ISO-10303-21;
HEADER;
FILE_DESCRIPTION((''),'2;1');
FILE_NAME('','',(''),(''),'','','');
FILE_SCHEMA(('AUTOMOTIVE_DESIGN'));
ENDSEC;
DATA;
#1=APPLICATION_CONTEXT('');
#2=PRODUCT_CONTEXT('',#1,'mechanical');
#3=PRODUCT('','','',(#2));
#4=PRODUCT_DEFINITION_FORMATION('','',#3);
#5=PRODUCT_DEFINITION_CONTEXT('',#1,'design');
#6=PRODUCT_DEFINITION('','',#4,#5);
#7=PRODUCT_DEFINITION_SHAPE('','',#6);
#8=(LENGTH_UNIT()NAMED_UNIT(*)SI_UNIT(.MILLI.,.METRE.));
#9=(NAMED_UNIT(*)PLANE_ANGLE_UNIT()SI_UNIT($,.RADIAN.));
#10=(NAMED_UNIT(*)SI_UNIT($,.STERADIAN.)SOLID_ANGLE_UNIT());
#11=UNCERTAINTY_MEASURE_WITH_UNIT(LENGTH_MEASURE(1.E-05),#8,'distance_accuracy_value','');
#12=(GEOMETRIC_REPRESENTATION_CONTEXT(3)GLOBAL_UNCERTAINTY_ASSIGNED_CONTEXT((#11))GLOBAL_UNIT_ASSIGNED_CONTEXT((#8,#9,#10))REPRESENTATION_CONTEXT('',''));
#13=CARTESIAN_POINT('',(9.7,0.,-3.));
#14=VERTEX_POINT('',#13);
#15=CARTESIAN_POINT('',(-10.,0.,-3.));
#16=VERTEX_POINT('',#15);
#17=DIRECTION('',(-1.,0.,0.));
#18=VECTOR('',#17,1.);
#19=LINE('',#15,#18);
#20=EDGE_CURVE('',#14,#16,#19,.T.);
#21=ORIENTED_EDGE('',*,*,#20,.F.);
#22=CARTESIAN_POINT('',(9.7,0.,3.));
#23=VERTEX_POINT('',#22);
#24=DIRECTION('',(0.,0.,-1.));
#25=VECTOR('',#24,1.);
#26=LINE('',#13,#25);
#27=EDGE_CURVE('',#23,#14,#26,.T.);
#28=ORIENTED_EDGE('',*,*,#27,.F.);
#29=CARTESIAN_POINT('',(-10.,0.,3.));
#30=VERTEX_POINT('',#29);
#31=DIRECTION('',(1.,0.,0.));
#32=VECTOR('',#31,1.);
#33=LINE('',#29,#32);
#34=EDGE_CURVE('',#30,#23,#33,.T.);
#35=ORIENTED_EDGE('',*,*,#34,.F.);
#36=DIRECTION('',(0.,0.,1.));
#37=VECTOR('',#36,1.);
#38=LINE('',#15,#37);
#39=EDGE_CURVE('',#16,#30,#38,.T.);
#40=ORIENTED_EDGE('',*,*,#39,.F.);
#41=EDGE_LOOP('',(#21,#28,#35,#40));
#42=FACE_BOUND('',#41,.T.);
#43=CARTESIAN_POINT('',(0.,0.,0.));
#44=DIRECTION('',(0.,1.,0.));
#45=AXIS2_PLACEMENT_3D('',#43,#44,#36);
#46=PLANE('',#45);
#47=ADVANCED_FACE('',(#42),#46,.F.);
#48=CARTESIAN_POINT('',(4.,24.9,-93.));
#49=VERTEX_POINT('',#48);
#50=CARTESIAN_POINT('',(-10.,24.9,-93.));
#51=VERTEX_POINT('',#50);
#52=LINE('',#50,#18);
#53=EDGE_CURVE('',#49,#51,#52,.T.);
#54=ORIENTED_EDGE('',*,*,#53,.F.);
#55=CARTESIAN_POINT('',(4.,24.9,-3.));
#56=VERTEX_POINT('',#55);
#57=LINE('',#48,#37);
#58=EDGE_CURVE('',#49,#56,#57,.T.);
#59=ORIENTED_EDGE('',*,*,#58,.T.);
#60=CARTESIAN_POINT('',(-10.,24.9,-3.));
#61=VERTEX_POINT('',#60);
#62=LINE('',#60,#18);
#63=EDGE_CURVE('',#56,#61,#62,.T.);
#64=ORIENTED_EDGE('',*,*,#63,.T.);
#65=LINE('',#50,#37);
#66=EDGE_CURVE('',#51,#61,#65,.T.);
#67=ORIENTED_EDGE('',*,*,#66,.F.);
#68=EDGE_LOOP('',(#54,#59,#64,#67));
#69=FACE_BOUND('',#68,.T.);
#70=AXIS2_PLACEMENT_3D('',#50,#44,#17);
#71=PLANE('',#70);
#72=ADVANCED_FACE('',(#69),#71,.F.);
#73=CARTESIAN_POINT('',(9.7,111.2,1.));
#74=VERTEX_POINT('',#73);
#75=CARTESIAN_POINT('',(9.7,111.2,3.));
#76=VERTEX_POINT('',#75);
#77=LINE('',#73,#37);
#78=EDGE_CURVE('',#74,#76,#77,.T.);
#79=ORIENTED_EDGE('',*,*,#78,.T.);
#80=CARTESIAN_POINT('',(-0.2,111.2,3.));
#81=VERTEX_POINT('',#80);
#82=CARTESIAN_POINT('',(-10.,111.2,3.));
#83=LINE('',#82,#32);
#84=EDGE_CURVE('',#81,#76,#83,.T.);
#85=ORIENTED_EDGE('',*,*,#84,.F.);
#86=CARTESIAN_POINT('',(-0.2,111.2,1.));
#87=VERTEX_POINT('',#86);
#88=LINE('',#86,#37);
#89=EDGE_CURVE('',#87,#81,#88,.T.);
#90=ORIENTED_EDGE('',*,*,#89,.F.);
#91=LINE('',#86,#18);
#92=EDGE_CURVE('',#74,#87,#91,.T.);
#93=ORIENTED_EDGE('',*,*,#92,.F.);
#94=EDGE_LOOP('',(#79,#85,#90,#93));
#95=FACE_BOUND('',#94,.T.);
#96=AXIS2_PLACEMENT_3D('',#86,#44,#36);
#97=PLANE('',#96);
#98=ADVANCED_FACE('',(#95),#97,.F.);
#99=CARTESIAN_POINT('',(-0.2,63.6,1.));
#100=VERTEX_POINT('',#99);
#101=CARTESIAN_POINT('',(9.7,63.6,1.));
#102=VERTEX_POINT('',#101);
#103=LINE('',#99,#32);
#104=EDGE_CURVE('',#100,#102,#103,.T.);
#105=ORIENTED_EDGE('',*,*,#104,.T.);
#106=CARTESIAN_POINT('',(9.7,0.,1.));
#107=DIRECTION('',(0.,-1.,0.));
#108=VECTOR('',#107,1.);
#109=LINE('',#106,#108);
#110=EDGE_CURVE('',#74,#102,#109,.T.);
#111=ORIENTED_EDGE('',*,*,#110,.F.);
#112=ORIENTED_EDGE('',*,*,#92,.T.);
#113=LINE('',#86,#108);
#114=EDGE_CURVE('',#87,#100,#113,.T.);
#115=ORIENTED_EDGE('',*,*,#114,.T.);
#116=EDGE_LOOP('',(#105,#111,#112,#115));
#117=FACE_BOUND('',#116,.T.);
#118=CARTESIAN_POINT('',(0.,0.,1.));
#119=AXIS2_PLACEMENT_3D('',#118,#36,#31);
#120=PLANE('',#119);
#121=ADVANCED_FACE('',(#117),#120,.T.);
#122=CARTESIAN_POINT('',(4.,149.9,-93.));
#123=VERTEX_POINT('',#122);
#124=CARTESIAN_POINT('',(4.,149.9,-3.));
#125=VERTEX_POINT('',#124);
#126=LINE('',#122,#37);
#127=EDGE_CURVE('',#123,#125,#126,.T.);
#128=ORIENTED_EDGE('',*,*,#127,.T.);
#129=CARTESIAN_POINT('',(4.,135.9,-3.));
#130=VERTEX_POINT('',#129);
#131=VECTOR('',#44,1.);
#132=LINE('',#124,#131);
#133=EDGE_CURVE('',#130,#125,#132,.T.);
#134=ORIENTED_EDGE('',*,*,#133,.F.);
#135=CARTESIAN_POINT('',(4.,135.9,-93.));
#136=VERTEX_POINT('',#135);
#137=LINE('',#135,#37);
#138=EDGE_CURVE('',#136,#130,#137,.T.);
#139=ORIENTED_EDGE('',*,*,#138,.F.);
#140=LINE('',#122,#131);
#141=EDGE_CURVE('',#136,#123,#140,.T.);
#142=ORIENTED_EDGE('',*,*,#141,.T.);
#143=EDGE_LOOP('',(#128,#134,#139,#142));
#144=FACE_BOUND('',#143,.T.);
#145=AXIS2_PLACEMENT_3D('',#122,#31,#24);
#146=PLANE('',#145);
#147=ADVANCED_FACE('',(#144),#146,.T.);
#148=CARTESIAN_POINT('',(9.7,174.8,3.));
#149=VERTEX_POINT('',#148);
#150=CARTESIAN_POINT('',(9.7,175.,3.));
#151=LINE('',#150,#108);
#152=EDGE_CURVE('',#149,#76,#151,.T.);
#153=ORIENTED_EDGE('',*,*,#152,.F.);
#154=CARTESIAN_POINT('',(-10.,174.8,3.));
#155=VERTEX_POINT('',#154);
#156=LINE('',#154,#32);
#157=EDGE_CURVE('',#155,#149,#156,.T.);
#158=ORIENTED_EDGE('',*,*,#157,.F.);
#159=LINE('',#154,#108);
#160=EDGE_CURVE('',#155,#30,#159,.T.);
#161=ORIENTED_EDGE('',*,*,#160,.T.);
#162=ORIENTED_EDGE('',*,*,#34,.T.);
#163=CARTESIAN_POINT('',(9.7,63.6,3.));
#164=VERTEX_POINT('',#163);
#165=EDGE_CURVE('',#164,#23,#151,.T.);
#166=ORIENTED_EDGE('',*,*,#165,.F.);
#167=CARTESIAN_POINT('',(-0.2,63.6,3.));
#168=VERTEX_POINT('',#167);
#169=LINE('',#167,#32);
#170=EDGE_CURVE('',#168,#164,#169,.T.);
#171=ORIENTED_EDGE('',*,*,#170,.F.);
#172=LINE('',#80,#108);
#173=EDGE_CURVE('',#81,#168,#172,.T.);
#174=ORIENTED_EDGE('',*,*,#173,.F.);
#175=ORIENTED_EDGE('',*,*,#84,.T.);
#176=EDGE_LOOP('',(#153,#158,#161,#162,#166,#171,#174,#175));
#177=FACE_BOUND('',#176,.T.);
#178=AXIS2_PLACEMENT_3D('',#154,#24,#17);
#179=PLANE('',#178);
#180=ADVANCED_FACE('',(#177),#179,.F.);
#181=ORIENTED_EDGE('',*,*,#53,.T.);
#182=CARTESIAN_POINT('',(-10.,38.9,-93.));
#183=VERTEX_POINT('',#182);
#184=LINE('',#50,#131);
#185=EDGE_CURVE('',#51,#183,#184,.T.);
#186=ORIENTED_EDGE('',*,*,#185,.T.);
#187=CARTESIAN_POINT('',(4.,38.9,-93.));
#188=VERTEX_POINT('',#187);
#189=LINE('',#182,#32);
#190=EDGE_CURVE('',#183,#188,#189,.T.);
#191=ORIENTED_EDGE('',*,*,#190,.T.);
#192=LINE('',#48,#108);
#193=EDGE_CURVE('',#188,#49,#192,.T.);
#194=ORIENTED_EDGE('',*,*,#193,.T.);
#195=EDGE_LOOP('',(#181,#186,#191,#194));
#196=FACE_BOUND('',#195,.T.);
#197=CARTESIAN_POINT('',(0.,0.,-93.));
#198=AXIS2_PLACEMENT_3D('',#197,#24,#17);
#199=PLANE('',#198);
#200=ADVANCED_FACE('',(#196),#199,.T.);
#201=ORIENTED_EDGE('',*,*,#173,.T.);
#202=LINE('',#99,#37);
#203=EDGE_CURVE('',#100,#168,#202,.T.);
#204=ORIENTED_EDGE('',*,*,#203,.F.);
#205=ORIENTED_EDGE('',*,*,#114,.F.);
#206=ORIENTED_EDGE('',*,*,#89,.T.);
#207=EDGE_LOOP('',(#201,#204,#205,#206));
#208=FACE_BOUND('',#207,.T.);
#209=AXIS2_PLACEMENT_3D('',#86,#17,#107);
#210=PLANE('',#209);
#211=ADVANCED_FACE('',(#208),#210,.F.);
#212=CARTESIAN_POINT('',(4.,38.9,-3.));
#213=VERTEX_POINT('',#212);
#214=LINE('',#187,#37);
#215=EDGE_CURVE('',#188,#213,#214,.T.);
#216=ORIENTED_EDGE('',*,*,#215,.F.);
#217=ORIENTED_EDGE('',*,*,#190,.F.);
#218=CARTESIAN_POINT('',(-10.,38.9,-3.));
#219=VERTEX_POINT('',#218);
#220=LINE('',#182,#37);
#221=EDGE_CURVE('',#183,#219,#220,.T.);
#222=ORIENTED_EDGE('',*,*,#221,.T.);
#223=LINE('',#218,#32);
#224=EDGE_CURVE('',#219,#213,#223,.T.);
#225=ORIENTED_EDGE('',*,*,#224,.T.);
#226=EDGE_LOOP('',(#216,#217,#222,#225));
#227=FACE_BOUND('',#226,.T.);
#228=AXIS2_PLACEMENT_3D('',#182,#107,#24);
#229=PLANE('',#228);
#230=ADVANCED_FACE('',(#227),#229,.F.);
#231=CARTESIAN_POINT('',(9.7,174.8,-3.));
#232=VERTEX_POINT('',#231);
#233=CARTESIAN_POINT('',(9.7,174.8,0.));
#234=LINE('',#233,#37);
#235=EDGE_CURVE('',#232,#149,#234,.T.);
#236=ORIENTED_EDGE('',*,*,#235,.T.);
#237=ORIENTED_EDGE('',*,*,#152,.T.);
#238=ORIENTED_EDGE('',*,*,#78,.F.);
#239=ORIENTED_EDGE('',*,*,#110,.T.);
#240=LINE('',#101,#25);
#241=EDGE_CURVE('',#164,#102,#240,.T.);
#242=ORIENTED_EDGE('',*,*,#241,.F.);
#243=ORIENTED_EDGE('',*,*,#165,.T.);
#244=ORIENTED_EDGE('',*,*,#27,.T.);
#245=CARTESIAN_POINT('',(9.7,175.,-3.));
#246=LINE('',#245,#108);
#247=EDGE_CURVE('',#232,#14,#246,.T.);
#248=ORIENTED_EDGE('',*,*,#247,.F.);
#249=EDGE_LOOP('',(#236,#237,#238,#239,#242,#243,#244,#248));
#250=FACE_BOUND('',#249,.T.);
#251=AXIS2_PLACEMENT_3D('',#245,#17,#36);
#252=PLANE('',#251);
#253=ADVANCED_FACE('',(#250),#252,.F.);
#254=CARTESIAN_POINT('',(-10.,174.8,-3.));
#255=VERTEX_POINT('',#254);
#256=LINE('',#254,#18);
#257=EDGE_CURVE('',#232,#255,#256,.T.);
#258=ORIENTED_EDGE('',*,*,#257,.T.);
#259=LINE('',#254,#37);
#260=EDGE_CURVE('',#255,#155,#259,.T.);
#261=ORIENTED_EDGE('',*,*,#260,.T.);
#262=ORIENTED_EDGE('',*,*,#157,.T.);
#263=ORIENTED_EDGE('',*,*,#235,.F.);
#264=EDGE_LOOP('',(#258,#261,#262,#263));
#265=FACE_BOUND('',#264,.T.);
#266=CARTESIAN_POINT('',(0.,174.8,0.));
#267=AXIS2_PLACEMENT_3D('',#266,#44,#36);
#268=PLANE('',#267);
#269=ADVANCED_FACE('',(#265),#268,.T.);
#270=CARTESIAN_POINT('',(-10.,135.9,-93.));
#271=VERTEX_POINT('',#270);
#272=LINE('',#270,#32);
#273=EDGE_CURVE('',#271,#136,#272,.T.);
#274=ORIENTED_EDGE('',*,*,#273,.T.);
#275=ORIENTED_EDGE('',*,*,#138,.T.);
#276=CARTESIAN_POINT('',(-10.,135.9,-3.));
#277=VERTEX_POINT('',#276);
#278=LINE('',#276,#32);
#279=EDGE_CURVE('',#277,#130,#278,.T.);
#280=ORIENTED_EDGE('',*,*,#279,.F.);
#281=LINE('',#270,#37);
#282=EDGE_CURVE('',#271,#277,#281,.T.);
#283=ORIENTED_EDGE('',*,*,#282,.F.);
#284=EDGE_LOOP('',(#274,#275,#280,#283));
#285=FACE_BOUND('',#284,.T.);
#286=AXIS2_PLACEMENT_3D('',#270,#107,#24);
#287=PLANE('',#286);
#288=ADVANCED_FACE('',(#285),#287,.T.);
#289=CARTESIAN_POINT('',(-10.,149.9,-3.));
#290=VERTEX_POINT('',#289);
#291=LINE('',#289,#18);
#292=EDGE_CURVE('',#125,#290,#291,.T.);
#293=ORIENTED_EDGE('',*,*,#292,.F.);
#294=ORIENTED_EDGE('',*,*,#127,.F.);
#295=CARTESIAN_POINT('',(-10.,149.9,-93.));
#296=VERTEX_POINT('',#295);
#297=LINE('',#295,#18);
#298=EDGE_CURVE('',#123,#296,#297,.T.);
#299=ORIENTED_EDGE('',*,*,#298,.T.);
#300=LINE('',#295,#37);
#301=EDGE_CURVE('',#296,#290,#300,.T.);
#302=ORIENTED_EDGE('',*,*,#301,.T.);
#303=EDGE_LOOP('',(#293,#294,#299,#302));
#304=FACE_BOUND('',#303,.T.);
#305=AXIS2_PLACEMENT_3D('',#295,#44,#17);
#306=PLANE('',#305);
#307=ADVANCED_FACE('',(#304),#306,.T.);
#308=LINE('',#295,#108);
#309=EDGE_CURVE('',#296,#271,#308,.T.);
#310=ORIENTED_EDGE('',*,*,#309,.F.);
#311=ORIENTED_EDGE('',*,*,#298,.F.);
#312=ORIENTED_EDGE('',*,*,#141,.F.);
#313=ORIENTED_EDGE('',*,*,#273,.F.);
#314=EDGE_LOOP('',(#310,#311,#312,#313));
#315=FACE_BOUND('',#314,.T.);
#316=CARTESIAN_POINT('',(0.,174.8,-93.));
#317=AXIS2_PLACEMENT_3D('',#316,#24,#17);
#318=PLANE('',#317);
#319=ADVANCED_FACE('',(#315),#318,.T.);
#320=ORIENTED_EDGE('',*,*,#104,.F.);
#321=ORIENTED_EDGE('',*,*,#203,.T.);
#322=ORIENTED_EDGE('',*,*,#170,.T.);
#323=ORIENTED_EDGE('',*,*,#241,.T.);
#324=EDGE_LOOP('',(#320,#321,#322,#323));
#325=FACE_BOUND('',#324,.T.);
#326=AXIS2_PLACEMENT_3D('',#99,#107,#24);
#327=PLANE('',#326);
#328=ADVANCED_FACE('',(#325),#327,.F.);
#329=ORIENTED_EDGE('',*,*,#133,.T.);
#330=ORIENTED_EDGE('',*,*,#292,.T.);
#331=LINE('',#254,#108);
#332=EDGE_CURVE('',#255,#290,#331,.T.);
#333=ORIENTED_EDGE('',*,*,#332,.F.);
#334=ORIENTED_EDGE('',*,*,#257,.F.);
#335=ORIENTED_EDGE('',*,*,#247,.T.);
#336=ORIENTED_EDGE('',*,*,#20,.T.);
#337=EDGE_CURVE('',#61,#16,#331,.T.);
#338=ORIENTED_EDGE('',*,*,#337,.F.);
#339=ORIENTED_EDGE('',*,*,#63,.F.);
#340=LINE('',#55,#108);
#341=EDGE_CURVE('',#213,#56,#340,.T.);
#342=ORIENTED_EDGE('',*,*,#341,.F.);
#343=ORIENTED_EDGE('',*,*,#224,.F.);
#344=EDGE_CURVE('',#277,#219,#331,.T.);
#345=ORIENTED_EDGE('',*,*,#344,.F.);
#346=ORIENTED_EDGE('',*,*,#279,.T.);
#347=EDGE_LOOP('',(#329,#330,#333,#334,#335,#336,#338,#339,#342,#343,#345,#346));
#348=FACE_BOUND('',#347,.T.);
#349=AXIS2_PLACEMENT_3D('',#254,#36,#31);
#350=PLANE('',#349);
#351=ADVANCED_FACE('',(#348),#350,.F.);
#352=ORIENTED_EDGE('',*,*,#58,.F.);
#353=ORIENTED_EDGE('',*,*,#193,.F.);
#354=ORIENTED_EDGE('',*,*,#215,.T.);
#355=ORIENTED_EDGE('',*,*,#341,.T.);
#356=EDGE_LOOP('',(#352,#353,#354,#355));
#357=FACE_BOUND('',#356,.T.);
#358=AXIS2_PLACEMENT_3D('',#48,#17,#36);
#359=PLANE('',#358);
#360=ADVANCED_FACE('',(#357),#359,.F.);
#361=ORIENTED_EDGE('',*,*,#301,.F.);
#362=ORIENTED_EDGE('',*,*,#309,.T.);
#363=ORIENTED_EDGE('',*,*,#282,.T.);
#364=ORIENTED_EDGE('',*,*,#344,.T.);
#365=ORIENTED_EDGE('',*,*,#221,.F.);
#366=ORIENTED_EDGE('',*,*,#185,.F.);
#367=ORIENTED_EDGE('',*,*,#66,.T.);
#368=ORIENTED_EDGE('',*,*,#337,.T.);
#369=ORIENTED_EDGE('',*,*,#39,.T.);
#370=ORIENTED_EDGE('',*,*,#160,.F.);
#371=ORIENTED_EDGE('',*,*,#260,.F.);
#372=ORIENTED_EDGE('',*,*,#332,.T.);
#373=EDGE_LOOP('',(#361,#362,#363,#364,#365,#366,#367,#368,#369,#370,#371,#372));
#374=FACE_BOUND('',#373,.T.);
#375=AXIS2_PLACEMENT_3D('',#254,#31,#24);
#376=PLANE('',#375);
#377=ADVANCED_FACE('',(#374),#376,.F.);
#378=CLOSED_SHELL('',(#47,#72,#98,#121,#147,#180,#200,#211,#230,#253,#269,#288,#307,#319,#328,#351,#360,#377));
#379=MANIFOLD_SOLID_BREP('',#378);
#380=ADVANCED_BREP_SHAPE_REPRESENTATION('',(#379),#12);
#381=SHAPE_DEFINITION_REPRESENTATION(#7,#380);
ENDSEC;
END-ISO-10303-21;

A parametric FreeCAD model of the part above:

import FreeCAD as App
import Part
import Sketcher
from FreeCAD import Vector

doc = App.newDocument("Part")
body = doc.addObject("PartDesign::Body", "Body")

sketch1 = body.newObject("Sketcher::SketchObject", "Sketch")
sketch1.AttachmentSupport = (doc.getObject("XZ_Plane"), [""])
sketch1.MapMode = "FlatFace"
sketch1.addGeometry([
    Part.LineSegment(Vector(-10, -3, 0), Vector(-10, 3, 0)),
    Part.LineSegment(Vector(-10, 3, 0), Vector(10, 3, 0)),
    Part.LineSegment(Vector(10, 3, 0), Vector(10, -3, 0)),
    Part.LineSegment(Vector(10, -3, 0), Vector(-10, -3, 0)),
], False)
sketch1.addConstraint([
    Sketcher.Constraint("Coincident", 0, 2, 1, 1),
    Sketcher.Constraint("Coincident", 1, 2, 2, 1),
    Sketcher.Constraint("Coincident", 2, 2, 3, 1),
    Sketcher.Constraint("Coincident", 3, 2, 0, 1),
    Sketcher.Constraint("Vertical", 0),
    Sketcher.Constraint("Horizontal", 1),
    Sketcher.Constraint("Vertical", 2),
    Sketcher.Constraint("Horizontal", 3),
    Sketcher.Constraint("Symmetric", 0, 2, 2, 2, -1, 1),
    Sketcher.Constraint("DistanceX", 1, 1, 1, 2, 20.0),
    Sketcher.Constraint("DistanceY", 0, 1, 0, 2, 6.0),
])
pad1 = body.newObject("PartDesign::Pad", "Pad")
pad1.Profile = sketch1
pad1.Length = 174.8
pad1.Reversed = True

sketch2 = body.newObject("Sketcher::SketchObject", "Sketch001")
sketch2.AttachmentSupport = (doc.getObject("XY_Plane"), [""])
sketch2.MapMode = "FlatFace"
sketch2.AttachmentOffset = App.Placement(Vector(0, 0, 3), App.Rotation())
sketch2.addGeometry([
    Part.LineSegment(Vector(0, 111, 0), Vector(0, 64, 0)),
    Part.LineSegment(Vector(0, 64, 0), Vector(20, 64, 0)),
    Part.LineSegment(Vector(20, 64, 0), Vector(20, 111, 0)),
    Part.LineSegment(Vector(20, 111, 0), Vector(0, 111, 0)),
], False)
sketch2.addConstraint([
    Sketcher.Constraint("Coincident", 0, 2, 1, 1),
    Sketcher.Constraint("Coincident", 1, 2, 2, 1),
    Sketcher.Constraint("Coincident", 2, 2, 3, 1),
    Sketcher.Constraint("Coincident", 3, 2, 0, 1),
    Sketcher.Constraint("Vertical", 0),
    Sketcher.Constraint("Horizontal", 1),
    Sketcher.Constraint("Vertical", 2),
    Sketcher.Constraint("Horizontal", 3),
    Sketcher.Constraint("DistanceX", 1, 1, 1, 2, 20.4),
    Sketcher.Constraint("DistanceY", 0, 2, 0, 1, 47.6),
    Sketcher.Constraint("DistanceX", 0, 2, -1, 1, 0.2),
    Sketcher.Constraint("DistanceY", -1, 1, 0, 2, 63.6),
])
pocket1 = body.newObject("PartDesign::Pocket", "Pocket")
pocket1.Profile = sketch2
pocket1.Length = 2

sketch3 = body.newObject("Sketcher::SketchObject", "Sketch002")
sketch3.AttachmentSupport = (doc.getObject("XY_Plane"), [""])
sketch3.MapMode = "FlatFace"
sketch3.AttachmentOffset = App.Placement(Vector(0, 0, -3), App.Rotation())
sketch3.addGeometry([
    Part.LineSegment(Vector(4, 39, 0), Vector(4, 25, 0)),
    Part.LineSegment(Vector(4, 25, 0), Vector(-10, 25, 0)),
    Part.LineSegment(Vector(-10, 25, 0), Vector(-10, 39, 0)),
    Part.LineSegment(Vector(-10, 39, 0), Vector(4, 39, 0)),
], False)
sketch3.addConstraint([
    Sketcher.Constraint("Coincident", 0, 2, 1, 1),
    Sketcher.Constraint("Coincident", 1, 2, 2, 1),
    Sketcher.Constraint("Coincident", 2, 2, 3, 1),
    Sketcher.Constraint("Coincident", 3, 2, 0, 1),
    Sketcher.Constraint("Vertical", 0),
    Sketcher.Constraint("Horizontal", 1),
    Sketcher.Constraint("Vertical", 2),
    Sketcher.Constraint("Horizontal", 3),
    Sketcher.Constraint("Equal", 3, 0),
    Sketcher.Constraint("DistanceX", 1, 2, 1, 1, 14.0),
    Sketcher.Constraint("DistanceX", -1, 1, 0, 2, 4.0),
    Sketcher.Constraint("DistanceY", -1, 1, 0, 2, 24.9),
])
pad2 = body.newObject("PartDesign::Pad", "Pad001")
pad2.Profile = sketch3
pad2.Length = 90
pad2.Reversed = True
doc.recompute()

datumplane = body.newObject("PartDesign::Plane", "DatumPlane")
datumplane.AttachmentSupport = (doc.getObject("XZ_Plane"), [""])
datumplane.MapMode = "FlatFace"
datumplane.AttachmentOffset = App.Placement(Vector(0, 0, -87.4), App.Rotation())
mirrored = body.newObject("PartDesign::Mirrored", "Mirrored")
mirrored.Originals = [pad2]
mirrored.MirrorPlane = (datumplane, [""])
body.Tip = mirrored

sketch4 = body.newObject("Sketcher::SketchObject", "Sketch003")
sketch4.AttachmentSupport = (doc.getObject("XZ_Plane"), [""])
sketch4.MapMode = "FlatFace"
sketch4.addGeometry([
    Part.LineSegment(Vector(9.7, 3, 0), Vector(9.7, -3, 0)),
    Part.LineSegment(Vector(9.7, -3, 0), Vector(10, -3, 0)),
    Part.LineSegment(Vector(10, -3, 0), Vector(10, 3, 0)),
    Part.LineSegment(Vector(10, 3, 0), Vector(9.7, 3, 0)),
], False)
sketch4.addConstraint([
    Sketcher.Constraint("Coincident", 0, 2, 1, 1),
    Sketcher.Constraint("Coincident", 1, 2, 2, 1),
    Sketcher.Constraint("Coincident", 2, 2, 3, 1),
    Sketcher.Constraint("Coincident", 3, 2, 0, 1),
    Sketcher.Constraint("Vertical", 0),
    Sketcher.Constraint("Horizontal", 1),
    Sketcher.Constraint("Vertical", 2),
    Sketcher.Constraint("Horizontal", 3),
    Sketcher.Constraint("DistanceY", 0, 2, 0, 1, 6.0),
    Sketcher.Constraint("DistanceX", 1, 1, 1, 2, 0.3),
    Sketcher.Constraint("DistanceY", 0, 2, -1, 1, 3.0),
    Sketcher.Constraint("DistanceX", -1, 1, 1, 2, 10.0),
])
pocket2 = body.newObject("PartDesign::Pocket", "Pocket001")
pocket2.Profile = sketch4
pocket2.Length = 175

doc.recompute()
